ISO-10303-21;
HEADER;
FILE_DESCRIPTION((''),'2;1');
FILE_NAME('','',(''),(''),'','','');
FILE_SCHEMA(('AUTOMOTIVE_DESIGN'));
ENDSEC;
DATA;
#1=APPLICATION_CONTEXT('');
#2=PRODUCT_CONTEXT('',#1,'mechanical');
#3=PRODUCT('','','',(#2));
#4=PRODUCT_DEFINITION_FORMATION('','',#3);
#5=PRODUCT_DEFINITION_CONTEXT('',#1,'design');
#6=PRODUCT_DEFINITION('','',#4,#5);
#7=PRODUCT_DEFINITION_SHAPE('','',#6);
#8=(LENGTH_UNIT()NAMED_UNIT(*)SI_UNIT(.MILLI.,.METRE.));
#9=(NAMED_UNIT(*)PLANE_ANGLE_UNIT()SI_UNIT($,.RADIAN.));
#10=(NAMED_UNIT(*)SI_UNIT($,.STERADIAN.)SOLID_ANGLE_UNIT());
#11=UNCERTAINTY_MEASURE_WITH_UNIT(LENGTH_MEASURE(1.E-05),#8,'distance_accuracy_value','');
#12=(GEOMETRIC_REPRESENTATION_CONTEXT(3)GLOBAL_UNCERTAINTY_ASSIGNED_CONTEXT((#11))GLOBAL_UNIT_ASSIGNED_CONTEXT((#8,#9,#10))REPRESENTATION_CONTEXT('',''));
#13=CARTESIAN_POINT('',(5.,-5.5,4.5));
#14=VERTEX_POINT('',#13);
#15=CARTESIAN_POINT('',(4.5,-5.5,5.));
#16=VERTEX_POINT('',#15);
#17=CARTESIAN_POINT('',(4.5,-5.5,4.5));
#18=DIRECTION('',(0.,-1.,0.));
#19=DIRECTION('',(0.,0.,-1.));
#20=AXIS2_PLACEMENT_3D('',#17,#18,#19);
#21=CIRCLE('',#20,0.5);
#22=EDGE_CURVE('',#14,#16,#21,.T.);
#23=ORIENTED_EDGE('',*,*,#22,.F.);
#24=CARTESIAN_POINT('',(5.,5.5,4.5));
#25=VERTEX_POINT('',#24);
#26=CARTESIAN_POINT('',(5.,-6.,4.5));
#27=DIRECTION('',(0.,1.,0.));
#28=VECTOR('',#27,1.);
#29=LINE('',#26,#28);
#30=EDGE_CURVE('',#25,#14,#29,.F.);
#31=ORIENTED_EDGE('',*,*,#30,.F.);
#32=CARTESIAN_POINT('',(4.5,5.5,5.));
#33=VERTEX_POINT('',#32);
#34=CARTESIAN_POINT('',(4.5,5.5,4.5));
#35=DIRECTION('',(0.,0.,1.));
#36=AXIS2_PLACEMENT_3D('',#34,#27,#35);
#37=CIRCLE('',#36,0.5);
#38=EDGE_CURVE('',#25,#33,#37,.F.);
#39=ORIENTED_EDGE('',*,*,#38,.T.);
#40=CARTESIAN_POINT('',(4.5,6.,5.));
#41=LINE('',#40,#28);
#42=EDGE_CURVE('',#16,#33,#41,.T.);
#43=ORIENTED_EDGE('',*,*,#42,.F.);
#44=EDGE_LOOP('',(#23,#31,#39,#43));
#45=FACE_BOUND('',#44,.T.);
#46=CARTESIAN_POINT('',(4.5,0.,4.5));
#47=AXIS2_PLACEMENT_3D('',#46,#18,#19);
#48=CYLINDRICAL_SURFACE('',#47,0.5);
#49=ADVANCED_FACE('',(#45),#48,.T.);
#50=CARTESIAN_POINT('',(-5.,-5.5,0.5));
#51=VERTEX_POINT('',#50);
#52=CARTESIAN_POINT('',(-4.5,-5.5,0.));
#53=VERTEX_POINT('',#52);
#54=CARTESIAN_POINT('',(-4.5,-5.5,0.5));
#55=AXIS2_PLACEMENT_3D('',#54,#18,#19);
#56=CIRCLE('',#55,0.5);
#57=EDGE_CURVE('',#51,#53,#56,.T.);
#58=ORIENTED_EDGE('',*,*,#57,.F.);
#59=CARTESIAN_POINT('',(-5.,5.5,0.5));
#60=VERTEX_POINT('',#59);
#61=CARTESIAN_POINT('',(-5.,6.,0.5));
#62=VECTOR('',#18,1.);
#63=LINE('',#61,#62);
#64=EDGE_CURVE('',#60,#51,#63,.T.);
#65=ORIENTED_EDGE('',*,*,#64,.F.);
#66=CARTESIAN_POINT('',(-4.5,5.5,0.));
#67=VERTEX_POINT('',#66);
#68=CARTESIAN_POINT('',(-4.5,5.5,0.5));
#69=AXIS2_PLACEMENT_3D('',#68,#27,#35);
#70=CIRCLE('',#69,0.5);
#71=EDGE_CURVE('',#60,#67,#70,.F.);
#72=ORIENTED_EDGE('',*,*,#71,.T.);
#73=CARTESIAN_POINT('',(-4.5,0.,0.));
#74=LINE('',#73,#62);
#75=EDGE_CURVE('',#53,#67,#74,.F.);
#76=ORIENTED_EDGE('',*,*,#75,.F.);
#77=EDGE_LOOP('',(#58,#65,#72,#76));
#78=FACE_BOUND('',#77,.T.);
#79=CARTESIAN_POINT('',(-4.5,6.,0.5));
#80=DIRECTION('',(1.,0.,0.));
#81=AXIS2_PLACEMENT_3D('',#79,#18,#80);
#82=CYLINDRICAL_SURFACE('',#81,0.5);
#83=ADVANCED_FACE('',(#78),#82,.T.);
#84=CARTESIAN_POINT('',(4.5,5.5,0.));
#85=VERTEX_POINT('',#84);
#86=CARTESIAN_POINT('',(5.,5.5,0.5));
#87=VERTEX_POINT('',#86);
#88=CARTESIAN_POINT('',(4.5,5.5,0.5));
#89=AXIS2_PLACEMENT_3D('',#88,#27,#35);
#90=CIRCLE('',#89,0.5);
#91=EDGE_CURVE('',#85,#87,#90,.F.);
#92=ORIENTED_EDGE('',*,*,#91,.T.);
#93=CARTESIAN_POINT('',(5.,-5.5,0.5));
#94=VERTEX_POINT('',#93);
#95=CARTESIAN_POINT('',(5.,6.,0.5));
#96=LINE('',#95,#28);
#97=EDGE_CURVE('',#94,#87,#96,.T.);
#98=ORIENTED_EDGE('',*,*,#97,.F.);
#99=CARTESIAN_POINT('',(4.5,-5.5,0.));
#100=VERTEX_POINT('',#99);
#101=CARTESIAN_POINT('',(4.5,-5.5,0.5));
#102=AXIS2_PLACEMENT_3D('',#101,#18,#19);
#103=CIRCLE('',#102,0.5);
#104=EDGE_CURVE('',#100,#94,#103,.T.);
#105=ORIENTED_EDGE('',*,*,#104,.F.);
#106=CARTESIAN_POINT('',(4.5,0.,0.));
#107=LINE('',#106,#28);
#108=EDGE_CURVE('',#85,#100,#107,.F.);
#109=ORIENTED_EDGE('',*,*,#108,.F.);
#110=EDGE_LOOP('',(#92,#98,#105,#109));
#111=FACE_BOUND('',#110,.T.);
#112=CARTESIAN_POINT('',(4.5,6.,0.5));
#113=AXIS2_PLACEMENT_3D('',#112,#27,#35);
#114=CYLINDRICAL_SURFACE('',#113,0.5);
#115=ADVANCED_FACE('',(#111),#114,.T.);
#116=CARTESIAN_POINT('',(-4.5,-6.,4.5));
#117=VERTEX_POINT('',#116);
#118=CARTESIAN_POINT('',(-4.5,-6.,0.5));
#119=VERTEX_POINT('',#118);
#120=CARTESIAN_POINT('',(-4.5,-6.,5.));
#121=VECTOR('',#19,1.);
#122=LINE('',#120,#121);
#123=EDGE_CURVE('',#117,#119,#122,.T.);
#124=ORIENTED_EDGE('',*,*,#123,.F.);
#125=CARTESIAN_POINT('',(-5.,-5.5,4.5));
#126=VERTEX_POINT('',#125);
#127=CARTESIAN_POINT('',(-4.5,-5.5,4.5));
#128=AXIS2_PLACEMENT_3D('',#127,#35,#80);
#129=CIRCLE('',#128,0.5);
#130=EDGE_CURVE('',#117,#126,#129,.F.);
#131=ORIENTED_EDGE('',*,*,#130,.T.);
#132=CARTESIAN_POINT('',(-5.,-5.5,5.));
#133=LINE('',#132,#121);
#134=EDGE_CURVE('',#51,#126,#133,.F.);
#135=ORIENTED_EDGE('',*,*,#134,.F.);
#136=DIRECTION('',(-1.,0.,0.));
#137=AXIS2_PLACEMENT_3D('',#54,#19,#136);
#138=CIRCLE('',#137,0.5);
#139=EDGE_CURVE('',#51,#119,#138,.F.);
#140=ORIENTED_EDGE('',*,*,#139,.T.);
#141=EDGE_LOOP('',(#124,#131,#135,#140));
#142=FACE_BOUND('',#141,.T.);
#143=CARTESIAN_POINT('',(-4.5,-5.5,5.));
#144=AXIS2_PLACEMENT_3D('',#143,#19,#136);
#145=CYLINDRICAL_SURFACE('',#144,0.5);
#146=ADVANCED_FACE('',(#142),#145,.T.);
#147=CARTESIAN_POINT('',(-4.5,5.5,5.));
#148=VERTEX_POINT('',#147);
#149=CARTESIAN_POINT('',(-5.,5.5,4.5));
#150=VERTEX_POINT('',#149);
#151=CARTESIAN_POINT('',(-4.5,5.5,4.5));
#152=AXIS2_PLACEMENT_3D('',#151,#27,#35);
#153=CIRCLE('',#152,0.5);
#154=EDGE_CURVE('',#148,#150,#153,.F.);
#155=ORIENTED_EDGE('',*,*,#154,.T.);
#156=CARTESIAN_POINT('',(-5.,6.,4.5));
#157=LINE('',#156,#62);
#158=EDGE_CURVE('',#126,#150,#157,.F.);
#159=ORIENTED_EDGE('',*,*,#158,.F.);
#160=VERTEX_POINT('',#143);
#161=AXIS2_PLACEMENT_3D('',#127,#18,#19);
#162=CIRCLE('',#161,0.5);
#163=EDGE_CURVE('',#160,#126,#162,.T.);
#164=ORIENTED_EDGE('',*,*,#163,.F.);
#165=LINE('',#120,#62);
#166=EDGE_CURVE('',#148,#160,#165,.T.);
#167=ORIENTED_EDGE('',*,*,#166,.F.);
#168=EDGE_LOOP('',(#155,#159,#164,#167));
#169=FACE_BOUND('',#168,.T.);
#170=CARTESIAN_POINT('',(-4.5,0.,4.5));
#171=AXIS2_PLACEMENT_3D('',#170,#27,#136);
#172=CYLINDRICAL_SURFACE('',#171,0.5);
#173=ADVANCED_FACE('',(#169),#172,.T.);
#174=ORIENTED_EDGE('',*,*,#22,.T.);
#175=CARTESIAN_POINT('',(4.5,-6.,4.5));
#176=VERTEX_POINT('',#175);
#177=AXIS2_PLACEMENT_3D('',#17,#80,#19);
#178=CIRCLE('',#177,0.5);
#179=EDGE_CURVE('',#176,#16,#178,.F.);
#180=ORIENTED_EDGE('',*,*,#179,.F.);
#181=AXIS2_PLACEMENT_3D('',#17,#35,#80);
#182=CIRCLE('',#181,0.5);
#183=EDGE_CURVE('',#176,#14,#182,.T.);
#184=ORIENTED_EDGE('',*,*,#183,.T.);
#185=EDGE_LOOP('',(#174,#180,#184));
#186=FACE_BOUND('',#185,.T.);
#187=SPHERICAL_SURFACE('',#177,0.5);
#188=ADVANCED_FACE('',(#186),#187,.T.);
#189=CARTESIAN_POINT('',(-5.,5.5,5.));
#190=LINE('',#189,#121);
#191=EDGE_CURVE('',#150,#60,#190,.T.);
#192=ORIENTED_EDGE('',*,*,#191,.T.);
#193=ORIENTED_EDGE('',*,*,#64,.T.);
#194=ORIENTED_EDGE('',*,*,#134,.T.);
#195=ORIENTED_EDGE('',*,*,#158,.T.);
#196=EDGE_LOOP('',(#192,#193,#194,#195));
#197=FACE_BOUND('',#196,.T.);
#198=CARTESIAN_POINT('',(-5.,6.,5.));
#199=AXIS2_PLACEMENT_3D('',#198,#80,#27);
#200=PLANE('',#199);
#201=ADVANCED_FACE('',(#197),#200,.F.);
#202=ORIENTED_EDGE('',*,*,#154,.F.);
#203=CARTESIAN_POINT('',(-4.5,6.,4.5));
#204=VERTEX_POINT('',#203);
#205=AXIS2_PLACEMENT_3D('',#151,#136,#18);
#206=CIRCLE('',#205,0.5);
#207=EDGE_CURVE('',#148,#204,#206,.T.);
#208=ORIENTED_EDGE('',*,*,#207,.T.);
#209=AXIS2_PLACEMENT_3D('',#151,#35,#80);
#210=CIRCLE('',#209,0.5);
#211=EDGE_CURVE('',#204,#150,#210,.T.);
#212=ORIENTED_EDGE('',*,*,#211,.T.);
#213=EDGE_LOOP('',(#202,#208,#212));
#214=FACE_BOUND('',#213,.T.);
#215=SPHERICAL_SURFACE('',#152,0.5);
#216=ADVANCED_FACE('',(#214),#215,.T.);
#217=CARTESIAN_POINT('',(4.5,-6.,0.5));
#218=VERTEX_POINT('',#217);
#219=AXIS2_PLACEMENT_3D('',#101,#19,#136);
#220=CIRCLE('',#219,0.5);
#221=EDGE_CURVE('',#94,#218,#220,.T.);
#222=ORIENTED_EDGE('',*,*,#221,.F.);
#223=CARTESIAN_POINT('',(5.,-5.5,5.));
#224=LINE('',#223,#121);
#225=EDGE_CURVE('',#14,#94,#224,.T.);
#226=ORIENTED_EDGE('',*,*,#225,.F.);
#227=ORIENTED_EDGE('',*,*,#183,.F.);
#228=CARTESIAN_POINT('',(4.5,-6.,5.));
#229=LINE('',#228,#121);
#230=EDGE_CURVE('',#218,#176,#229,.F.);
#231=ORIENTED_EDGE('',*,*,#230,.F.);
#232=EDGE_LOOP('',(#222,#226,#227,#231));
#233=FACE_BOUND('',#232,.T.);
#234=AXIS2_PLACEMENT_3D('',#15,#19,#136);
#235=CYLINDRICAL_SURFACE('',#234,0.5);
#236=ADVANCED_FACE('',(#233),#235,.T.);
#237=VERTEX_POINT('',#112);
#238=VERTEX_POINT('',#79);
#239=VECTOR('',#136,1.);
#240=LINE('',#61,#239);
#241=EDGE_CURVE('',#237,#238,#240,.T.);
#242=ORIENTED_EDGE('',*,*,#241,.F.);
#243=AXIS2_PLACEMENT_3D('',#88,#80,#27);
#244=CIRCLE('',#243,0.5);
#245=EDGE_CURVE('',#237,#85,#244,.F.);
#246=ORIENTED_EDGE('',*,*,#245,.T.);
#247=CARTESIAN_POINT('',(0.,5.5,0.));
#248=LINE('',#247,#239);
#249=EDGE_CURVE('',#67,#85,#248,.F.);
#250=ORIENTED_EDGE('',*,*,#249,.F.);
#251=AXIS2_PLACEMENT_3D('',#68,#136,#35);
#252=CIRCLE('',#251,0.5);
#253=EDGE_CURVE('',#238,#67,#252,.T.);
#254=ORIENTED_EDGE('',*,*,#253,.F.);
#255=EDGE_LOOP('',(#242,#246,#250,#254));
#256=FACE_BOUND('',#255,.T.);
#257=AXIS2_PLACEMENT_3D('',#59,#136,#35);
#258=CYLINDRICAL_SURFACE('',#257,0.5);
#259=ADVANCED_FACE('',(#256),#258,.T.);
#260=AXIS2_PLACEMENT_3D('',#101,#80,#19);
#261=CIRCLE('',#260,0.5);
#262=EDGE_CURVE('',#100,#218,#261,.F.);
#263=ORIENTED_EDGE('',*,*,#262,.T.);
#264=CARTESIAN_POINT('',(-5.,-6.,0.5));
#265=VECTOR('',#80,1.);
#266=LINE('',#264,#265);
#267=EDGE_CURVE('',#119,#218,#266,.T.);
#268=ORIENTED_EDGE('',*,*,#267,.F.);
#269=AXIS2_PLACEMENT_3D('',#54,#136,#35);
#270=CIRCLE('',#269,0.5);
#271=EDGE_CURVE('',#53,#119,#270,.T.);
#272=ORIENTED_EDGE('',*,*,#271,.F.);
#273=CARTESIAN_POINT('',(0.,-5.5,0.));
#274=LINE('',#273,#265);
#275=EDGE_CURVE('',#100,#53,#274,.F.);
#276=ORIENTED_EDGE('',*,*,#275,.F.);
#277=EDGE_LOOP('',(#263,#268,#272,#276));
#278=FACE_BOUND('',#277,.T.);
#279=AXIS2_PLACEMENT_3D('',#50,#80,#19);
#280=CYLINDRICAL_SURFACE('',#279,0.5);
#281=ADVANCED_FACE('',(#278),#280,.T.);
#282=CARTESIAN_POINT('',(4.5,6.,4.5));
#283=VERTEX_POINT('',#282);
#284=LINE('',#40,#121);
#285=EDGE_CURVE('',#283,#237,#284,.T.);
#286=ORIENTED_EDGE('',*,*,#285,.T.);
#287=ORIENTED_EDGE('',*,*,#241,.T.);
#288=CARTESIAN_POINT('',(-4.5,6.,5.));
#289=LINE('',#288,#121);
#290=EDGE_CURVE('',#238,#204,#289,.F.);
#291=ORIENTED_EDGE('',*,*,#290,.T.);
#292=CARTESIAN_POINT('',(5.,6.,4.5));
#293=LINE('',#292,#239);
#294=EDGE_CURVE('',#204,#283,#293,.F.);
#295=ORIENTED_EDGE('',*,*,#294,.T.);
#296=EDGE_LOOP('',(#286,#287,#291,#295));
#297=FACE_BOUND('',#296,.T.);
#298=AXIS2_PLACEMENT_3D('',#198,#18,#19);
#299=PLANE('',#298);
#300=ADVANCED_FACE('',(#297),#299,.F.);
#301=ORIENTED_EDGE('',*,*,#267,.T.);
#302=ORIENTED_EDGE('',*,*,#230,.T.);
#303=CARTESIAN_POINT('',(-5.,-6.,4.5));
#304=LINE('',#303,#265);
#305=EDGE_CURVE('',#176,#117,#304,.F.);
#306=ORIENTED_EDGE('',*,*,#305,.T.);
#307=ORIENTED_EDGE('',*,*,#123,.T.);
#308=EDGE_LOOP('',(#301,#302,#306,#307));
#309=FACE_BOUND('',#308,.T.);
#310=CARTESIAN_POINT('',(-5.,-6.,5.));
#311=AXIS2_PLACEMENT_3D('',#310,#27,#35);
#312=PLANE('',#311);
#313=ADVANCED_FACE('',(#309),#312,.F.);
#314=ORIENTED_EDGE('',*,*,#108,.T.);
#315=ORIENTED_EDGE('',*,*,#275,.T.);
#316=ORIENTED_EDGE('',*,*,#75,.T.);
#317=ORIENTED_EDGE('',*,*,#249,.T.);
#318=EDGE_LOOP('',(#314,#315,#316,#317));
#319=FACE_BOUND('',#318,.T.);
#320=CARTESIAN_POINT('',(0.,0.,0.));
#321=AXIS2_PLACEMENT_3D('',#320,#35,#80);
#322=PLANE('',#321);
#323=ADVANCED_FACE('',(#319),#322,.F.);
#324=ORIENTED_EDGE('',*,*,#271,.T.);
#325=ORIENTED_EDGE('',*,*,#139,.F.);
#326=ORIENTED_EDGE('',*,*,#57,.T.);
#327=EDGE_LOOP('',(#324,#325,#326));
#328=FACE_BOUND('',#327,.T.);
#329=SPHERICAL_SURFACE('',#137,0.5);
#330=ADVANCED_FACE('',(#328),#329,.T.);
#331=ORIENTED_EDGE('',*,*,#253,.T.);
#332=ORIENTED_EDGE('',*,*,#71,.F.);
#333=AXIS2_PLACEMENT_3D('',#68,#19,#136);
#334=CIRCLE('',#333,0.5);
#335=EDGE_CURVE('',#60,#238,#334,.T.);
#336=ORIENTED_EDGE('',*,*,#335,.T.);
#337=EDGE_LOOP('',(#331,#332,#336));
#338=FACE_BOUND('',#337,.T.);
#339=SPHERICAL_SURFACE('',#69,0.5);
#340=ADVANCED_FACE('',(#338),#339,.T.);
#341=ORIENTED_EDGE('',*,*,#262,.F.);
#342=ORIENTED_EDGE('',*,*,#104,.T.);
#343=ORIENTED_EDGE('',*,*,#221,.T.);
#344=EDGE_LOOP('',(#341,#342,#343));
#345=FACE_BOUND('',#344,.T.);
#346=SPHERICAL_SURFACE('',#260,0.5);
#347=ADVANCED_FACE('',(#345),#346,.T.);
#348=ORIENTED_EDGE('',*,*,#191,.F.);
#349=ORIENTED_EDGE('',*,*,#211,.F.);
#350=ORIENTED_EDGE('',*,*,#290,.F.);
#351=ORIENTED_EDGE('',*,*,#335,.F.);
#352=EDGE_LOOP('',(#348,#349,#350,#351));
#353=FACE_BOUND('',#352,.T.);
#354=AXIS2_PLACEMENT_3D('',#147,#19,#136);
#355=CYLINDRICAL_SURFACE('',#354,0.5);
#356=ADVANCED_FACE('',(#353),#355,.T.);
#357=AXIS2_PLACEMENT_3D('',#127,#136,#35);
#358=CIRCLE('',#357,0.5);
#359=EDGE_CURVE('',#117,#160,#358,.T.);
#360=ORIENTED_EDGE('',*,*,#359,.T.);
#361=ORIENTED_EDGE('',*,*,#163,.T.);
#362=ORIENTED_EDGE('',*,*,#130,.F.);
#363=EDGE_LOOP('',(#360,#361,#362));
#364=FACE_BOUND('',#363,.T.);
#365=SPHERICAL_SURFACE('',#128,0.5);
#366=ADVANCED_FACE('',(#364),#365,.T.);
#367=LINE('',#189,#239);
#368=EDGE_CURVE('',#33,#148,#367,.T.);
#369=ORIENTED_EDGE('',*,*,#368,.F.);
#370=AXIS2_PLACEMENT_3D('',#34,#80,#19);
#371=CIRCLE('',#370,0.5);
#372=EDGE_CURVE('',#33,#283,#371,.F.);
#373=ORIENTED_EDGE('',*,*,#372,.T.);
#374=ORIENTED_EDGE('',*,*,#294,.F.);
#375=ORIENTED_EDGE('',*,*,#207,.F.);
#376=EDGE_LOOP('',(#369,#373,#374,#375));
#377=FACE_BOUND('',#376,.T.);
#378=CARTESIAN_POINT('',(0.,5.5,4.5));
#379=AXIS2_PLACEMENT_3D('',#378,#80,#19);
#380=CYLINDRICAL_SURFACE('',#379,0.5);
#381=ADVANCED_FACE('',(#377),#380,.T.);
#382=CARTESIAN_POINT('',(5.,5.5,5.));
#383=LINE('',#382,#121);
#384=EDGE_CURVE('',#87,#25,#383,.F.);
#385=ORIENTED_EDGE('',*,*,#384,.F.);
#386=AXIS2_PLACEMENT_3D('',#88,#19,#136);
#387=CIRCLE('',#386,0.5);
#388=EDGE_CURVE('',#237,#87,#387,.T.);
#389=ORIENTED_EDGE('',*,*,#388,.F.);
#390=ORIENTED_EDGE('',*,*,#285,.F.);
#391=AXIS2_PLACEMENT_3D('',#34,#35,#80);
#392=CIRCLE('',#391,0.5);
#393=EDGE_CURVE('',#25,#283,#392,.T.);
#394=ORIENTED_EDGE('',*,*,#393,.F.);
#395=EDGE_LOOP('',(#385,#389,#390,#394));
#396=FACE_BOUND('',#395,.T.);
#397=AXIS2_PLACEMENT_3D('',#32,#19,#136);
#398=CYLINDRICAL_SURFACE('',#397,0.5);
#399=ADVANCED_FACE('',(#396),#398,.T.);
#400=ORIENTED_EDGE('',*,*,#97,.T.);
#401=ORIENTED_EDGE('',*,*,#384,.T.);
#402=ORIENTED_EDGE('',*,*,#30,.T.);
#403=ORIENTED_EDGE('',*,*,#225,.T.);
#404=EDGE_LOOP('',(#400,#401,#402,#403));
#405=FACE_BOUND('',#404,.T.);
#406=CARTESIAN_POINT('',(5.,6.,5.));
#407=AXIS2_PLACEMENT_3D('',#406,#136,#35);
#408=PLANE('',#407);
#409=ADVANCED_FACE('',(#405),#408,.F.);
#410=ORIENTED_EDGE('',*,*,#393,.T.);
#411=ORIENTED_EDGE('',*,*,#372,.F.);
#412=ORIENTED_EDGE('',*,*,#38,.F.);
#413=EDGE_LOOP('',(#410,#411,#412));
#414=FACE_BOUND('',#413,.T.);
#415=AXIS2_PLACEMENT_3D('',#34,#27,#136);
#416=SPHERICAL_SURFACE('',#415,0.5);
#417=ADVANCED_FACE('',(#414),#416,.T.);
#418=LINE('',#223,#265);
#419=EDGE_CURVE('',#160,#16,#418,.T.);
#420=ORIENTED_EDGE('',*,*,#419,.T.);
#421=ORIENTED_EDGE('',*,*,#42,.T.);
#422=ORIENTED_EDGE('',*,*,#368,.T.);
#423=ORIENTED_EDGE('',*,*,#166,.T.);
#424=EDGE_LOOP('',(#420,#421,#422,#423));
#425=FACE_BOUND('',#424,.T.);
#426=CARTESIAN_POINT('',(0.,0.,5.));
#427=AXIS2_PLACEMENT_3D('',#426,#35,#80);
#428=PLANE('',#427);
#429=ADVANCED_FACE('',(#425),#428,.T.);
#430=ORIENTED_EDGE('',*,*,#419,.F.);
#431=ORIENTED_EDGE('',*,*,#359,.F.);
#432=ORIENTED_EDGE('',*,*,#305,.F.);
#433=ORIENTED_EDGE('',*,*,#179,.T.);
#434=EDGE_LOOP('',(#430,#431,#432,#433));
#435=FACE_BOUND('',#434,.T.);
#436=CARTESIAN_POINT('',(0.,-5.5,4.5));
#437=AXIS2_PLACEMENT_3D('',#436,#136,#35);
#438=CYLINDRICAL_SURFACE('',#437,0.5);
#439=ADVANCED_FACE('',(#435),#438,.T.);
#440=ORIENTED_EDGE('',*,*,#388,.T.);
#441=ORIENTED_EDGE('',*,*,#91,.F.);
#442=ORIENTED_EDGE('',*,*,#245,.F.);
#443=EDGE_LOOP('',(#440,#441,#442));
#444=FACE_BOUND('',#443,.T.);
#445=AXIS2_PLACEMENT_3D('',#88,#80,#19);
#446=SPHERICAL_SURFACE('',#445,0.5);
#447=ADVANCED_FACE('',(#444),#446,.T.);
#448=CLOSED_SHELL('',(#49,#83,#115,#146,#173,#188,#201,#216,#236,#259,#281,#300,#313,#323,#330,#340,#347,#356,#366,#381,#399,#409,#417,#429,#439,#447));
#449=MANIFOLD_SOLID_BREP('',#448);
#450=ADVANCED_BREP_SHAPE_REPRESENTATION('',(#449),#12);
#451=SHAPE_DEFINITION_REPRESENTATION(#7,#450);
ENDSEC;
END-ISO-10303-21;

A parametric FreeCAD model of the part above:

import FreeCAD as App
import Part
import Sketcher

V = App.Vector
Q = App.Units.Quantity

doc = App.newDocument("Part")
body = doc.addObject("PartDesign::Body", "Body")

sketch1 = body.newObject("Sketcher::SketchObject", "Sketch")
sketch1.AttachmentSupport = (doc.getObject("XY_Plane"), [""])
sketch1.MapMode = "FlatFace"
sketch1.addGeometry([
    Part.LineSegment(V(-5, 6, 0), V(-5, -6, 0)),
    Part.LineSegment(V(-5, -6, 0), V(5, -6, 0)),
    Part.LineSegment(V(5, -6, 0), V(5, 6, 0)),
    Part.LineSegment(V(5, 6, 0), V(-5, 6, 0)),
], False)
sketch1.addConstraint([
    Sketcher.Constraint("Coincident", 0, 2, 1, 1),
    Sketcher.Constraint("Coincident", 1, 2, 2, 1),
    Sketcher.Constraint("Coincident", 2, 2, 3, 1),
    Sketcher.Constraint("Coincident", 3, 2, 0, 1),
    Sketcher.Constraint("Vertical", 0),
    Sketcher.Constraint("Horizontal", 1),
    Sketcher.Constraint("Vertical", 2),
    Sketcher.Constraint("Horizontal", 3),
    Sketcher.Constraint("Symmetric", 0, 2, 2, 2, -1, 1),
    Sketcher.Constraint("DistanceX", 1, 1, 1, 2, Q("10 mm")),
    Sketcher.Constraint("DistanceY", 0, 2, 0, 1, Q("12 mm")),
])
pad1 = body.newObject("PartDesign::Pad", "Pad")
pad1.Profile = sketch1
pad1.Length = 5
doc.recompute()

fillet = body.newObject("PartDesign::Fillet", "Fillet")
fillet.Base = (pad1, ["Edge1"])
fillet.UseAllEdges = True
fillet.Radius = 0.5

doc.recompute()
